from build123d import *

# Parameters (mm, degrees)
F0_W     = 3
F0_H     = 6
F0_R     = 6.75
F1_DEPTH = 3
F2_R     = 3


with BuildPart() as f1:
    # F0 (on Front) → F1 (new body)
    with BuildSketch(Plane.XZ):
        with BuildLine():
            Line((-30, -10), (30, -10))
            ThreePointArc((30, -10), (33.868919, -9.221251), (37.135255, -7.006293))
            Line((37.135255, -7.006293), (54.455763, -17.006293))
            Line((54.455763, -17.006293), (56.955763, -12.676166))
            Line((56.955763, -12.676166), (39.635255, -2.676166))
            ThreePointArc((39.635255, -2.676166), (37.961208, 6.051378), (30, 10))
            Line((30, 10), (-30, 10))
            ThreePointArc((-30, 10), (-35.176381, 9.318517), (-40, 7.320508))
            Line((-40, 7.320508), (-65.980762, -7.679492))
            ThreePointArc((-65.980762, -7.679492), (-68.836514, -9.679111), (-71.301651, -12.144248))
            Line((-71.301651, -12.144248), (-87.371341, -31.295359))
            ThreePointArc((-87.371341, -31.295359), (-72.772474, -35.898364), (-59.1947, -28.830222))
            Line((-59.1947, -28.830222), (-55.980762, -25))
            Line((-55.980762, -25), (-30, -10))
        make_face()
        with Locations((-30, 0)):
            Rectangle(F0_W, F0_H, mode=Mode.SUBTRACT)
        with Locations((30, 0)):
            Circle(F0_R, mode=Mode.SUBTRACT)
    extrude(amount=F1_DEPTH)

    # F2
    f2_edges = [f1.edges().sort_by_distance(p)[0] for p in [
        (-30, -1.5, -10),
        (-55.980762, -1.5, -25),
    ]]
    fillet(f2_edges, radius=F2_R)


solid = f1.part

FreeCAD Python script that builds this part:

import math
import FreeCAD as App
import Part
import Sketcher
from FreeCAD import Vector
Q = App.Units.Quantity


def edges_at(feature, points):
    """Names of the edges that pass closest to the given points."""
    edges = feature.Shape.Edges
    near = lambda p: min(range(len(edges)), key=lambda i: edges[i].distToShape(Part.Vertex(*p))[0])
    return sorted({f"Edge{near(p) + 1}" for p in points})


def add_polygon(sketch, points):
    """Adds a closed chain of lines whose ends are joined by coincident constraints."""
    first, n = sketch.GeometryCount, len(points)
    for a, b in zip(points, points[1:] + points[:1]):
        sketch.addGeometry(Part.LineSegment(App.Vector(*a, 0), App.Vector(*b, 0)), False)
    for i in range(n):
        sketch.addConstraint(Sketcher.Constraint("Coincident", first + i, 2, first + (i + 1) % n, 1))

doc = App.newDocument("Part")
body = doc.addObject("PartDesign::Body", "Body")

# Sketch on XZ plane
sketch1 = doc.addObject("Sketcher::SketchObject", "Sketch")
body.addObject(sketch1)
sketch1.AttachmentSupport = (doc.XZ_Plane, [""])
sketch1.MapMode = "FlatFace"
sketch1.addGeometry(Part.LineSegment(Vector(-30, -10, 0), Vector(30, -10, 0)), False)  # 0
sketch1.addGeometry(Part.ArcOfCircle(Part.Circle(Vector(30.000001, -0.000001, 0), Vector(0, 0, 1), 9.999999), math.radians(-90.000004), math.radians(-44.477513)), False)  # 1
sketch1.addGeometry(Part.LineSegment(Vector(37.135255, -7.006293, 0), Vector(54.455763, -17.006293, 0)), False)  # 2
sketch1.addGeometry(Part.LineSegment(Vector(54.455763, -17.006293, 0), Vector(56.955763, -12.676166, 0)), False)  # 3
sketch1.addGeometry(Part.LineSegment(Vector(56.955763, -12.676166, 0), Vector(39.635255, -2.676166, 0)), False)  # 4
sketch1.addGeometry(Part.ArcOfCircle(Part.Circle(Vector(30.000001, 0, 0), Vector(0, 0, 1), 10), math.radians(-15.522493), math.radians(90.000004)), False)  # 5
sketch1.addGeometry(Part.LineSegment(Vector(30, 10, 0), Vector(-30, 10, 0)), False)  # 6
sketch1.addGeometry(Part.ArcOfCircle(Part.Circle(Vector(-30.000004, -9.999985, 0), Vector(0, 0, 1), 19.999985), math.radians(89.999989), math.radians(120.000012)), False)  # 7
sketch1.addGeometry(Part.LineSegment(Vector(-40, 7.320508, 0), Vector(-65.980762, -7.679492, 0)), False)  # 8
sketch1.addGeometry(Part.ArcOfCircle(Part.Circle(Vector(-55.980763, -24.999999, 0), Vector(0, 0, 1), 19.999998), math.radians(119.999999), math.radians(140.000001)), False)  # 9
sketch1.addGeometry(Part.LineSegment(Vector(-71.301651, -12.144248, 0), Vector(-87.371341, -31.295359, 0)), False)  # 10
sketch1.addGeometry(Part.ArcOfCircle(Part.Circle(Vector(-74.515589, -15.97447, 0), Vector(0, 0, 1), 20), math.radians(-130), math.radians(-39.999999)), False)  # 11
sketch1.addGeometry(Part.LineSegment(Vector(-59.1947, -28.830222, 0), Vector(-55.980762, -25, 0)), False)  # 12
sketch1.addGeometry(Part.LineSegment(Vector(-55.980762, -25, 0), Vector(-30, -10, 0)), False)  # 13
add_polygon(sketch1, [(-28.5, -3), (-31.5, -3), (-31.5, 3), (-28.5, 3)])  # lines 14-17
sketch1.addGeometry(Part.Circle(Vector(30, 0, 0), Vector(0, 0, 1), 6.75), False)  # 18
sketch1.addConstraint([
    Sketcher.Constraint("Tangent", 0, 2, 1, 1),
    Sketcher.Constraint("Coincident", 1, 2, 2, 1),
    Sketcher.Constraint("Coincident", 2, 2, 3, 1),
    Sketcher.Constraint("Coincident", 3, 2, 4, 1),
    Sketcher.Constraint("Coincident", 4, 2, 5, 1),
    Sketcher.Constraint("Tangent", 5, 2, 6, 1),
    Sketcher.Constraint("Tangent", 6, 2, 7, 1),
    Sketcher.Constraint("Tangent", 7, 2, 8, 1),
    Sketcher.Constraint("Tangent", 8, 2, 9, 1),
    Sketcher.Constraint("Tangent", 9, 2, 10, 1),
    Sketcher.Constraint("Coincident", 10, 2, 11, 1),
    Sketcher.Constraint("Tangent", 11, 2, 12, 1),
    Sketcher.Constraint("Coincident", 12, 2, 13, 1),
    Sketcher.Constraint("Coincident", 13, 2, 0, 1),
    Sketcher.Constraint("Horizontal", 0),
    Sketcher.Constraint("Horizontal", 6),
    Sketcher.Constraint("Horizontal", 14),
    Sketcher.Constraint("Vertical", 15),
    Sketcher.Constraint("Horizontal", 16),
    Sketcher.Constraint("Vertical", 17),
    Sketcher.Constraint("Coincident", 5, 3, 1, 3),
    Sketcher.Constraint("Coincident", 18, 3, 1, 3),
    Sketcher.Constraint("Coincident", 12, 2, 9, 3),
    Sketcher.Constraint("Equal", 1, 5),
    Sketcher.Constraint("Equal", 9, 11),
    Sketcher.Constraint("Symmetric", 0, 2, 6, 2, -1, 1),
    Sketcher.Constraint("Perpendicular", 2, 3),
    Sketcher.Constraint("Perpendicular", 3, 4),
    Sketcher.Constraint("Parallel", 10, 12),
    Sketcher.Constraint("Parallel", 8, 13),
    Sketcher.Constraint("Vertical", 6, 2, 13, 2),
    Sketcher.Constraint("Equal", 2, 4),
    Sketcher.Constraint("Equal", 3, 12),
    Sketcher.Constraint("Equal", 8, 13),
    Sketcher.Constraint("Radius", 1, Q("9.999999 mm")),
    Sketcher.Constraint("Diameter", 18, Q("13.5 mm")),
    Sketcher.Constraint("DistanceX", 0, 1, 0, 2, Q("60 mm")),
    Sketcher.Constraint("DistanceX", 14, 2, 14, 1, Q("3 mm")),
    Sketcher.Constraint("DistanceY", 15, 1, 15, 2, Q("6 mm")),
    Sketcher.Constraint("Angle", 2, Q("-30 deg")),
    Sketcher.Constraint("Angle", 8, Q("-150 deg")),
    Sketcher.Constraint("Angle", 10, Q("-130 deg")),
    Sketcher.Constraint("Distance", 2, Q("20 mm")),
    Sketcher.Constraint("Distance", 3, Q("5 mm")),
    Sketcher.Constraint("Distance", 8, Q("30 mm")),
    Sketcher.Constraint("DistanceY", 14, 2, -1, 1, Q("3 mm")),
    Sketcher.Constraint("DistanceX", 14, 2, -1, 1, Q("31.5 mm")),
])
pad1 = doc.addObject("PartDesign::Pad", "Pad")
body.addObject(pad1)
pad1.Profile = sketch1
pad1.Length = 3
doc.recompute()

fillet = doc.addObject("PartDesign::Fillet", "Fillet")
body.addObject(fillet)
fillet.Base = (pad1, edges_at(pad1, [(-30, -1.5, -10), (-55.981, -1.5, -25)]))
fillet.Radius = 3

doc.recompute()
